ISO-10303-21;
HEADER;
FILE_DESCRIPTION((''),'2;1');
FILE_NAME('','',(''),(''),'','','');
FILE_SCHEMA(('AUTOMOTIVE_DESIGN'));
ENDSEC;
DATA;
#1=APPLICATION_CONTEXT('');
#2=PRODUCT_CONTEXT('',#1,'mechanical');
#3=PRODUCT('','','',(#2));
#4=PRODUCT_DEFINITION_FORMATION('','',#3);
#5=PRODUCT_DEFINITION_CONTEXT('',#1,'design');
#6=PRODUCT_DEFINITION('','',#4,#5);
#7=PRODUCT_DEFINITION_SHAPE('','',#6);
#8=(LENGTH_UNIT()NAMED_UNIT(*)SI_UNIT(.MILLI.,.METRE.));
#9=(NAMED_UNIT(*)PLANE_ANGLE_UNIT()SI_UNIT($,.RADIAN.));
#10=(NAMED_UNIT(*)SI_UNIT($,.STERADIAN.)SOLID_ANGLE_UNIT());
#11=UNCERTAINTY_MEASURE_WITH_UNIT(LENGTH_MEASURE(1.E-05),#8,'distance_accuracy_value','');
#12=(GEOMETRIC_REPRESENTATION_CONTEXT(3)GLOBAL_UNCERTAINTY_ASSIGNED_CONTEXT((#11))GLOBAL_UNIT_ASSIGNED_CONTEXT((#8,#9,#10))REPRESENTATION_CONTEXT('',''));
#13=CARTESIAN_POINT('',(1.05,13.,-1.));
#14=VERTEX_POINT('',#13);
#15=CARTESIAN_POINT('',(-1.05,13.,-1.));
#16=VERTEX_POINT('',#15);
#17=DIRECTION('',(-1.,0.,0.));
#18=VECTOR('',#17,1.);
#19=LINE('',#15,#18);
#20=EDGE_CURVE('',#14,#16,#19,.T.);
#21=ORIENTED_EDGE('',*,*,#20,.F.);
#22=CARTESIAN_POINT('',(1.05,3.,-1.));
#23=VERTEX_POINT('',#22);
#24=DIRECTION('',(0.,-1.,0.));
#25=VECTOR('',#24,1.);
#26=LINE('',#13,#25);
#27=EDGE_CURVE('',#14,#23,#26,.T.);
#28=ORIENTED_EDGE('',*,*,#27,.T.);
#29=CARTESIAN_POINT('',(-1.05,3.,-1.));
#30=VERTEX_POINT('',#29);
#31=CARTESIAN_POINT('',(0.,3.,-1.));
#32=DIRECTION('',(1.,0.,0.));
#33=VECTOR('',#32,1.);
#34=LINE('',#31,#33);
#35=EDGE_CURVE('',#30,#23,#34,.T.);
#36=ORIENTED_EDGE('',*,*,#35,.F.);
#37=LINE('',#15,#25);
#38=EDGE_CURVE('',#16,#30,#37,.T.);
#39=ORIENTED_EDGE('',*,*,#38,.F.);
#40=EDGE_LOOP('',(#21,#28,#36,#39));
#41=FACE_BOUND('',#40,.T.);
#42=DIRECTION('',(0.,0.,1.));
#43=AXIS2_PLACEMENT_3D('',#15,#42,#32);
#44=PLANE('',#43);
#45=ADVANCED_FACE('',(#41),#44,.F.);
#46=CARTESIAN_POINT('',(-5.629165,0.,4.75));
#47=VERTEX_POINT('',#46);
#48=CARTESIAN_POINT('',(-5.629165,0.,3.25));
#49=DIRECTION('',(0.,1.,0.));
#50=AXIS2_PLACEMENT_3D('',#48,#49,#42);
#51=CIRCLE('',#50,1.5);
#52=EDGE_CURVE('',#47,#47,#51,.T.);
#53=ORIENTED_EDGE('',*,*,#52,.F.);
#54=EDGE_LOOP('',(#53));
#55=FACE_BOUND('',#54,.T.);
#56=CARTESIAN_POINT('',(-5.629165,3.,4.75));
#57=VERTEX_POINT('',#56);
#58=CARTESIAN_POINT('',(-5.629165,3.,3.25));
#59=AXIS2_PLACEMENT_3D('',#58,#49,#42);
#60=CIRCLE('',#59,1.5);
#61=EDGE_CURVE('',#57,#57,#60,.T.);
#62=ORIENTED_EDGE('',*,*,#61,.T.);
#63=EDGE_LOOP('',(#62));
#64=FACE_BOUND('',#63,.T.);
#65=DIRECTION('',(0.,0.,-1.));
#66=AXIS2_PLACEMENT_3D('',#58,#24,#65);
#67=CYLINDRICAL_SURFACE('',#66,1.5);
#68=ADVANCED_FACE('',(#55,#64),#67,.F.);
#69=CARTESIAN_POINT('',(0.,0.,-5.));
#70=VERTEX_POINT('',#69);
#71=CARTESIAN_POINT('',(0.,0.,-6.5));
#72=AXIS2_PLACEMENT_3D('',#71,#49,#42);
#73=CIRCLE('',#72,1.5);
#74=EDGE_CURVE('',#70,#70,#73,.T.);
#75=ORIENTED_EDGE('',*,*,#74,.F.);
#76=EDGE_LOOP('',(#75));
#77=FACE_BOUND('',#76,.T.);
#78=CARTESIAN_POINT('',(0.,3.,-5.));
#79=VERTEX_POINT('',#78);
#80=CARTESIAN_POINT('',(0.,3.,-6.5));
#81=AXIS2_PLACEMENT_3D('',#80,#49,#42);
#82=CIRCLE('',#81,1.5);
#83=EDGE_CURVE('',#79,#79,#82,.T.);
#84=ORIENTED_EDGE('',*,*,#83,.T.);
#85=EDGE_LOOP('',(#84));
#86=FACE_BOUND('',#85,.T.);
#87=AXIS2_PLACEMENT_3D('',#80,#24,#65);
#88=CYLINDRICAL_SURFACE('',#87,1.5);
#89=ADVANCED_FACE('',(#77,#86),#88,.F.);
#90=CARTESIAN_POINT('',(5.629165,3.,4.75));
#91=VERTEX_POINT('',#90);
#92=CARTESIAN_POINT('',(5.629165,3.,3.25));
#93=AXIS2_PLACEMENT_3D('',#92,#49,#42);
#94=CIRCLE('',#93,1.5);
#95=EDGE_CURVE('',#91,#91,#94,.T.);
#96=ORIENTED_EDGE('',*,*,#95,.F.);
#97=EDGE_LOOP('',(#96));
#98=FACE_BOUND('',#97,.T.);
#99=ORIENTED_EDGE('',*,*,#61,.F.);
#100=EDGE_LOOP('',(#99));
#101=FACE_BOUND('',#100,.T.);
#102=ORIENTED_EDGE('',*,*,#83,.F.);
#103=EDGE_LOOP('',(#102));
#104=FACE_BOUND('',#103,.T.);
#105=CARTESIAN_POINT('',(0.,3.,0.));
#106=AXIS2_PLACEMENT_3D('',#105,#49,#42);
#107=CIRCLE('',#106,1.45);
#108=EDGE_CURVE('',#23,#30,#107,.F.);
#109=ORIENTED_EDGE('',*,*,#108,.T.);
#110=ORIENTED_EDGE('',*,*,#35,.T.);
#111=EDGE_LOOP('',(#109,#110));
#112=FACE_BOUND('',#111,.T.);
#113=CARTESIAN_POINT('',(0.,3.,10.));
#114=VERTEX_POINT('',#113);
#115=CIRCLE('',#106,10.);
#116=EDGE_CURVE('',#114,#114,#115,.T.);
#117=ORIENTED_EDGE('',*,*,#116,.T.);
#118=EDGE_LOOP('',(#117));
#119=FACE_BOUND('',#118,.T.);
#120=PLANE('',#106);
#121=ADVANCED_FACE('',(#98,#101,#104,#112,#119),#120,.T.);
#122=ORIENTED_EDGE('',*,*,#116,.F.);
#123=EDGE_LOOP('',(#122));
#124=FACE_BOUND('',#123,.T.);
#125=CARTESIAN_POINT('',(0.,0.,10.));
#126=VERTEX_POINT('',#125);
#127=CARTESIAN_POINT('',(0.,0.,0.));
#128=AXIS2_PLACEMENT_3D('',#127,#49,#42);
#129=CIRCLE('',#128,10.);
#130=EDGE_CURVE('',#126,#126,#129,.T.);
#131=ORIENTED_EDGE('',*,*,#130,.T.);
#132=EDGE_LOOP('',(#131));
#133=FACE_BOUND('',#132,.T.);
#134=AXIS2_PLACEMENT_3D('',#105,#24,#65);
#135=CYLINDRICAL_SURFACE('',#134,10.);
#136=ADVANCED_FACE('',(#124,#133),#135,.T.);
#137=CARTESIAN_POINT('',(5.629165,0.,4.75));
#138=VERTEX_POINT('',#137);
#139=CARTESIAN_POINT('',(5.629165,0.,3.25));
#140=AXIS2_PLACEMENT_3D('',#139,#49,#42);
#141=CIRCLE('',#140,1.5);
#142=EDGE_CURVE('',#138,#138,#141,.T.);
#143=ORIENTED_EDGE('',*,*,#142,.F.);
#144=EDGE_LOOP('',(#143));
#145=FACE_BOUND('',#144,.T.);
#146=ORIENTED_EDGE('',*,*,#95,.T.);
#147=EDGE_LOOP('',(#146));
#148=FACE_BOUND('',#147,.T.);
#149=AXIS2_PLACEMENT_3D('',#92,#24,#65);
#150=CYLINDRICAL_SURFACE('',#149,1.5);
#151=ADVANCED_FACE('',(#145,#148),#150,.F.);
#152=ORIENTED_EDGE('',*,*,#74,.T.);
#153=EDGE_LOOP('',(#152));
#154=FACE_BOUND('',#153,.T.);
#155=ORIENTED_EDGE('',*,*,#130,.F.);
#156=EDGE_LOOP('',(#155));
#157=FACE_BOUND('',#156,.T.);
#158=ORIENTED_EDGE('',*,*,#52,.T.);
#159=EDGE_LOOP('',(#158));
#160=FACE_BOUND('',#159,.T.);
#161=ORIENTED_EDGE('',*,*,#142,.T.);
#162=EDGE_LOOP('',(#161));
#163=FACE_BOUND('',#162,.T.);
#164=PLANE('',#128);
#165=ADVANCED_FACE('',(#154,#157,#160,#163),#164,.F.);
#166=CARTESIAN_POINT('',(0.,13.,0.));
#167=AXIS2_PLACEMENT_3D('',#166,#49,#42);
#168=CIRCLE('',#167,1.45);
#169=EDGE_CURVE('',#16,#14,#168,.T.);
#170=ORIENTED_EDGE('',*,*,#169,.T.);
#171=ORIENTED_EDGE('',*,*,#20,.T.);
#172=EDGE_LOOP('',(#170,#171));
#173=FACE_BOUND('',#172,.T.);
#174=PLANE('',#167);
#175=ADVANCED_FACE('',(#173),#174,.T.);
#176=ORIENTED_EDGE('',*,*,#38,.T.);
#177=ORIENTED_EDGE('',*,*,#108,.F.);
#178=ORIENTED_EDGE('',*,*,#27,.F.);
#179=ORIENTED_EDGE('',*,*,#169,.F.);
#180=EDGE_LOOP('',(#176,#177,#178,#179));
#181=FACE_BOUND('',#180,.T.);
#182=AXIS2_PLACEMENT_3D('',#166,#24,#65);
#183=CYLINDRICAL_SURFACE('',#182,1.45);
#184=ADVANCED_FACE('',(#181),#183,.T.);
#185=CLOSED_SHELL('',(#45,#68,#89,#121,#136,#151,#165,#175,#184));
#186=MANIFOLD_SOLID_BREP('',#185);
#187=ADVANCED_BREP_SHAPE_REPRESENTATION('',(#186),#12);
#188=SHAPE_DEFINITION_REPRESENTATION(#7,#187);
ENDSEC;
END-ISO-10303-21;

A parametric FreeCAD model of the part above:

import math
import FreeCAD as App
import Part
import Sketcher

V = App.Vector

doc = App.newDocument("Part")
body = doc.addObject("PartDesign::Body", "Body")

# Sketch on XZ plane
sketch1 = body.newObject("Sketcher::SketchObject", "Sketch")
sketch1.AttachmentSupport = (doc.getObject("XZ_Plane"), [""])
sketch1.MapMode = "FlatFace"
sketch1.addGeometry([
    Part.Circle(V(0, 0, 0), V(0, 0, 1), 10),
    Part.Circle(V(0, -6.5, 0), V(0, 0, 1), 1.5),
    Part.Circle(V(-5.6, 3.2, 0), V(0, 0, 1), 1.5),
    Part.Circle(V(5.6, 3.2, 0), V(0, 0, 1), 1.5),
], False)
sketch1.addConstraint([
    Sketcher.Constraint("Coincident", 0, 3, -1, 1),
    Sketcher.Constraint("Equal", 1, 2),
    Sketcher.Constraint("Equal", 2, 3),
    Sketcher.Constraint("Symmetric", 2, 3, 3, 3, -2),
    Sketcher.Constraint("PointOnObject", 1, 3, -2),
    Sketcher.Constraint("Diameter", 0, 20.0),
    Sketcher.Constraint("Diameter", 1, 3.0),
    Sketcher.Constraint("DistanceY", 1, 3, -1, 1, 6.5),
    Sketcher.Constraint("DistanceY", -1, 1, 2, 3, 3.25),
    Sketcher.Constraint("DistanceX", 2, 3, 3, 3, 11.25833),
])
pad1 = body.newObject("PartDesign::Pad", "Pad")
pad1.Profile = sketch1
pad1.Length = 3
pad1.Reversed = True

# Sketch on XZ plane
sketch2 = body.newObject("Sketcher::SketchObject", "Sketch001")
sketch2.AttachmentSupport = (doc.getObject("XZ_Plane"), [""])
sketch2.MapMode = "FlatFace"
sketch2.addGeometry([
    Part.LineSegment(V(1.1, -1, 0), V(-1.1, -1, 0)),
    Part.ArcOfCircle(Part.Circle(V(0, 0, 0), V(0, 0, 1), 1.4), math.radians(-44), math.radians(224)),
], False)
sketch2.addConstraint([
    Sketcher.Constraint("Coincident", 0, 1, 1, 1),
    Sketcher.Constraint("Coincident", 1, 2, 0, 2),
    Sketcher.Constraint("Horizontal", 0),
    Sketcher.Constraint("Coincident", 1, 3, -1, 1),
    Sketcher.Constraint("Radius", 1, 1.45),
    Sketcher.Constraint("DistanceX", 0, 2, 0, 1, 2.1),
])
pad2 = body.newObject("PartDesign::Pad", "Pad001")
pad2.Profile = sketch2
pad2.Length = 13
pad2.Reversed = True

doc.recompute()
